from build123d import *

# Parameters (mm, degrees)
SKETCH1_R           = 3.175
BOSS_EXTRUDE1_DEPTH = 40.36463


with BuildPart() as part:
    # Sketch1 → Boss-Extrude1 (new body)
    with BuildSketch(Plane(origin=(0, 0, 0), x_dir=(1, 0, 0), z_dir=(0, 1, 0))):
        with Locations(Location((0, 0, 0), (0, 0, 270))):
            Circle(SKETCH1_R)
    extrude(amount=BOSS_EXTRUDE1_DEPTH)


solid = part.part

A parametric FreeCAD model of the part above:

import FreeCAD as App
import Part
import Sketcher
Q = App.Units.Quantity

doc = App.newDocument("Part")
body = doc.addObject("PartDesign::Body", "Body")

# Sketch on XZ plane
sketch1 = body.newObject("Sketcher::SketchObject", "Sketch")
sketch1.AttachmentSupport = (doc.getObject("XZ_Plane"), [""])
sketch1.MapMode = "FlatFace"
sketch1.addGeometry(Part.Circle(App.Vector(0, 0, 0), App.Vector(0, 0, 1), 3.175), False)
sketch1.addConstraint([
    Sketcher.Constraint("Coincident", 0, 3, -1, 1),
    Sketcher.Constraint("Diameter", 0, Q("0.25 in")),
])
pad1 = body.newObject("PartDesign::Pad", "Pad")
pad1.Profile = sketch1
pad1.Length = 40.36463
pad1.Reversed = True

doc.recompute()
